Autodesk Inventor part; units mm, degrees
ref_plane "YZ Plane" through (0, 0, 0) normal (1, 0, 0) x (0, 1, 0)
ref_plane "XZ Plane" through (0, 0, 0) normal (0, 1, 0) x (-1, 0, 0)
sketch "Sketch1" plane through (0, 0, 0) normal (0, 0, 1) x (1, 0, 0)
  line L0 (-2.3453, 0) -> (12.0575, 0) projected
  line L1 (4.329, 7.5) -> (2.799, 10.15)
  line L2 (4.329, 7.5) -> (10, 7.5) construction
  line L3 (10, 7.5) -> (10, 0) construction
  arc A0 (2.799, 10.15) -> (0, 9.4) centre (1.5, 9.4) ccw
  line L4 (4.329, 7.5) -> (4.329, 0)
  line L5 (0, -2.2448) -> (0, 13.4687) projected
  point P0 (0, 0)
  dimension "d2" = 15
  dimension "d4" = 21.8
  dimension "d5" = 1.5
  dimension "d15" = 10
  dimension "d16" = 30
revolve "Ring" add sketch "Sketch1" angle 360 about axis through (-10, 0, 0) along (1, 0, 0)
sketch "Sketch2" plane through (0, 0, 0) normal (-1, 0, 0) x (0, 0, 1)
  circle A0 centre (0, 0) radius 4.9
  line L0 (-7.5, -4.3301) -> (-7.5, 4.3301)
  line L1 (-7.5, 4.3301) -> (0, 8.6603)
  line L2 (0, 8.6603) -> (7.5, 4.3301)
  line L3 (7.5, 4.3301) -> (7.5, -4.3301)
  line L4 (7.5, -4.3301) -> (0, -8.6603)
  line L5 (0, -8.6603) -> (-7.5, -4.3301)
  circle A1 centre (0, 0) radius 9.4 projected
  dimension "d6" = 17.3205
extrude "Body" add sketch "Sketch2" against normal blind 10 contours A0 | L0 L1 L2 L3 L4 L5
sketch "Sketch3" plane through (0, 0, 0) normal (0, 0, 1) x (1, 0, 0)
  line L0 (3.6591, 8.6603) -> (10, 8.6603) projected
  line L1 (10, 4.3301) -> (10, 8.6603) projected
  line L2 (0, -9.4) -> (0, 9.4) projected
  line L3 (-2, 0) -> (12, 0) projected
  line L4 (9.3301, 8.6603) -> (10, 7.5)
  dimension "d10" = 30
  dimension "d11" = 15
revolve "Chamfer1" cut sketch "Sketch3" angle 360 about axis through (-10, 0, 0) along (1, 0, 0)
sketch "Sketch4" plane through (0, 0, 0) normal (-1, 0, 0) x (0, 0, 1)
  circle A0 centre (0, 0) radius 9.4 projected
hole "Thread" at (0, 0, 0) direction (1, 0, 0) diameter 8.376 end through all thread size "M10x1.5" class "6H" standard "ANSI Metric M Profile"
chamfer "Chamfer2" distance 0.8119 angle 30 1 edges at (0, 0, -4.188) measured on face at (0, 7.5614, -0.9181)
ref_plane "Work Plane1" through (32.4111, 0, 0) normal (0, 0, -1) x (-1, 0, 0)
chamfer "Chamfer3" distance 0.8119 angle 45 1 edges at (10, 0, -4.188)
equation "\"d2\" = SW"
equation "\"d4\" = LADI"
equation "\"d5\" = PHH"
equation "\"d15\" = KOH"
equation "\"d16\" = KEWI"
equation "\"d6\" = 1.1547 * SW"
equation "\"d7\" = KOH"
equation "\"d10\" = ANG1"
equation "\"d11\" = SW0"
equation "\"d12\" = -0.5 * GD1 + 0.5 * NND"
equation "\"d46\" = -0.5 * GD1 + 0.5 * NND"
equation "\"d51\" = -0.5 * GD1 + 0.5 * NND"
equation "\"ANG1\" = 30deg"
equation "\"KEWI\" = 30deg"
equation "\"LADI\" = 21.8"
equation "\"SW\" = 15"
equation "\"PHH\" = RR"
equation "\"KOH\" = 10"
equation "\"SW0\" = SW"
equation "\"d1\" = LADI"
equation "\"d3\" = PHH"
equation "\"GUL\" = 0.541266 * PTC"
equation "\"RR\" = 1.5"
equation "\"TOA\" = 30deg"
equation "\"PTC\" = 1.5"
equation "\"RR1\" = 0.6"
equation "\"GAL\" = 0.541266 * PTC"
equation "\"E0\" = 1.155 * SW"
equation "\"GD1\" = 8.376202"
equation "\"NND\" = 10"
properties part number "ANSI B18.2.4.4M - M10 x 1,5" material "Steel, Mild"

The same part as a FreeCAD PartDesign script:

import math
import FreeCAD as App
import Part
import Sketcher
Q = App.Units.Quantity


def edges_at(feature, points):
    """Names of the edges that pass closest to the given points."""
    edges = feature.Shape.Edges
    near = lambda p: min(range(len(edges)), key=lambda i: edges[i].distToShape(Part.Vertex(*p))[0])
    return sorted({f"Edge{near(p) + 1}" for p in points})


def add_polygon(sketch, points):
    """Adds a closed chain of lines whose ends are joined by coincident constraints."""
    first, n = sketch.GeometryCount, len(points)
    for a, b in zip(points, points[1:] + points[:1]):
        sketch.addGeometry(Part.LineSegment(App.Vector(*a, 0), App.Vector(*b, 0)), False)
    for i in range(n):
        sketch.addConstraint(Sketcher.Constraint("Coincident", first + i, 2, first + (i + 1) % n, 1))

doc = App.newDocument("Part")
params = doc.addObject("Spreadsheet::Sheet", "Params")
for row, (alias, value) in enumerate([
    ("sketch1_radius", "1.5 mm"),
    ("sketch1_height", "9.4 mm"),
    ("sketch1_height2", "7.5 mm"),
    ("revolution_angle", "360 deg"),
    ("pad1_length", "10 mm"),
    ("sketch3_width", "0.67 mm"),
    ("groove_angle", "360 deg"),
    ("hole_diameter", "8.376 mm"),
    ("chamfer_size", "0.8119 mm"),
    ("chamfer2_size", "0.8119 mm"),
], start=1):
    params.set(f"A{row}", alias)
    params.set(f"B{row}", "=" + value)
    params.setAlias(f"B{row}", alias)

body = doc.addObject("PartDesign::Body", "Body")

# Sketch on XY plane
sketch1 = body.newObject("Sketcher::SketchObject", "Sketch")
sketch1.AttachmentSupport = (doc.getObject("XY_Plane"), [""])
sketch1.MapMode = "FlatFace"
sketch1.addGeometry([
    Part.LineSegment(App.Vector(0, 9.4, 0), App.Vector(0, 0, 0)),  # 0
    Part.LineSegment(App.Vector(0, 0, 0), App.Vector(4.3, 0, 0)),  # 1
    Part.LineSegment(App.Vector(4.3, 0, 0), App.Vector(4.3, 7.5, 0)),  # 2
    Part.LineSegment(App.Vector(4.3, 7.5, 0), App.Vector(2.8, 10.2, 0)),  # 3
    Part.ArcOfCircle(Part.Circle(App.Vector(1.5, 9.4, 0), App.Vector(0, 0, 1), 1.5), math.radians(30), math.radians(180)),  # 4
], False)
sketch1.addConstraint([
    Sketcher.Constraint("Coincident", 0, 2, 1, 1),
    Sketcher.Constraint("Coincident", 1, 2, 2, 1),
    Sketcher.Constraint("Coincident", 2, 2, 3, 1),
    Sketcher.Constraint("Tangent", 3, 2, 4, 1),
    Sketcher.Constraint("Tangent", 4, 2, 0, 1),
    Sketcher.Constraint("Vertical", 0),
    Sketcher.Constraint("Horizontal", 1),
    Sketcher.Constraint("Vertical", 2),
    Sketcher.Constraint("Coincident", 0, 2, -1, 1),
    Sketcher.Constraint("Radius", 4, Q("1.5 mm")),
    Sketcher.Constraint("Angle", 3, Q("120.0004 deg")),
    Sketcher.Constraint("DistanceY", 0, 2, 0, 1, Q("9.4 mm")),
    Sketcher.Constraint("DistanceY", 2, 1, 2, 2, Q("7.5 mm")),
])
sketch1.setExpression("Constraints[9]", "Params.sketch1_radius")
sketch1.setExpression("Constraints[11]", "Params.sketch1_height")
sketch1.setExpression("Constraints[12]", "Params.sketch1_height2")
revolution = body.newObject("PartDesign::Revolution", "Revolution")
revolution.Profile = sketch1
revolution.ReferenceAxis = (sketch1, ["H_Axis"])
revolution.setExpression("Angle", "Params.revolution_angle")

# Sketch on YZ plane
sketch2 = body.newObject("Sketcher::SketchObject", "Sketch001")
sketch2.AttachmentSupport = (doc.getObject("YZ_Plane"), [""])
sketch2.MapMode = "FlatFace"
add_polygon(sketch2, [(4, -8), (-4, -8), (-9, 0), (-4, 8), (4, 8), (9, 0)])  # lines 0-5
sketch2.addConstraint([
    Sketcher.Constraint("Horizontal", 0),
    Sketcher.Constraint("Horizontal", 3),
    Sketcher.Constraint("Symmetric", 0, 2, 3, 2, -1, 1),
    Sketcher.Constraint("Symmetric", 1, 2, 4, 2, -1, 1),
    Sketcher.Constraint("PointOnObject", 1, 2, -1),
    Sketcher.Constraint("Parallel", 2, 5),
    Sketcher.Constraint("Vertical", 0, 2, 2, 2),
    Sketcher.Constraint("Angle", 1, Q("120.0004 deg")),
    Sketcher.Constraint("DistanceY", 0, 2, 2, 2, Q("15 mm")),
    Sketcher.Constraint("DistanceX", 1, 2, 4, 2, Q("17.3206 mm")),
])
pad1 = body.newObject("PartDesign::Pad", "Pad")
pad1.Profile = sketch2
pad1.setExpression("Length", "Params.pad1_length")

# Sketch on XY plane
sketch3 = body.newObject("Sketcher::SketchObject", "Sketch002")
sketch3.AttachmentSupport = (doc.getObject("XY_Plane"), [""])
sketch3.MapMode = "FlatFace"
add_polygon(sketch3, [(10, 8.7), (9.3, 8.7), (10, 7.5)])  # lines 0-2
sketch3.addConstraint([
    Sketcher.Constraint("Horizontal", 0),
    Sketcher.Constraint("Vertical", 2),
    Sketcher.Constraint("Angle", 1, Q("-60 deg")),
    Sketcher.Constraint("DistanceX", -1, 1, 1, 2, Q("10 mm")),
    Sketcher.Constraint("DistanceX", 0, 2, 0, 1, Q("0.67 mm")),
    Sketcher.Constraint("DistanceY", -1, 1, 1, 2, Q("7.5 mm")),
])
sketch3.setExpression("Constraints[7]", "Params.sketch3_width")
groove = body.newObject("PartDesign::Groove", "Groove")
groove.Profile = sketch3
groove.ReferenceAxis = (sketch3, ["H_Axis"])
groove.setExpression("Angle", "Params.groove_angle")

# Sketch on YZ plane
sketch4 = body.newObject("Sketcher::SketchObject", "Sketch003")
sketch4.AttachmentSupport = (doc.getObject("YZ_Plane"), [""])
sketch4.MapMode = "FlatFace"
sketch4.addGeometry(Part.Circle(App.Vector(0, 0, 0), App.Vector(0, 0, 1), 4.2), False)
sketch4.addConstraint([
    Sketcher.Constraint("Coincident", 0, 3, -1, 1),
    Sketcher.Constraint("Diameter", 0, Q("8.376 mm")),
])
doc.recompute()
hole = body.newObject("PartDesign::Hole", "Hole")
hole.Profile = sketch4
hole.ThreadType = "None"
hole.setExpression("Diameter", "Params.hole_diameter")
hole.DepthType = "ThroughAll"
hole.Reversed = True
doc.recompute()

chamfer = body.newObject("PartDesign::Chamfer", "Chamfer")
chamfer.Base = (hole, edges_at(hole, [(0, 0, -4.188)]))
chamfer.ChamferType = "Distance and Angle"
chamfer.setExpression("Size", "Params.chamfer_size")
chamfer.Angle = 30
doc.recompute()

chamfer2 = body.newObject("PartDesign::Chamfer", "Chamfer001")
chamfer2.Base = (chamfer, edges_at(chamfer, [(10, 0, -4.188)]))
chamfer2.setExpression("Size", "Params.chamfer2_size")

doc.recompute()
